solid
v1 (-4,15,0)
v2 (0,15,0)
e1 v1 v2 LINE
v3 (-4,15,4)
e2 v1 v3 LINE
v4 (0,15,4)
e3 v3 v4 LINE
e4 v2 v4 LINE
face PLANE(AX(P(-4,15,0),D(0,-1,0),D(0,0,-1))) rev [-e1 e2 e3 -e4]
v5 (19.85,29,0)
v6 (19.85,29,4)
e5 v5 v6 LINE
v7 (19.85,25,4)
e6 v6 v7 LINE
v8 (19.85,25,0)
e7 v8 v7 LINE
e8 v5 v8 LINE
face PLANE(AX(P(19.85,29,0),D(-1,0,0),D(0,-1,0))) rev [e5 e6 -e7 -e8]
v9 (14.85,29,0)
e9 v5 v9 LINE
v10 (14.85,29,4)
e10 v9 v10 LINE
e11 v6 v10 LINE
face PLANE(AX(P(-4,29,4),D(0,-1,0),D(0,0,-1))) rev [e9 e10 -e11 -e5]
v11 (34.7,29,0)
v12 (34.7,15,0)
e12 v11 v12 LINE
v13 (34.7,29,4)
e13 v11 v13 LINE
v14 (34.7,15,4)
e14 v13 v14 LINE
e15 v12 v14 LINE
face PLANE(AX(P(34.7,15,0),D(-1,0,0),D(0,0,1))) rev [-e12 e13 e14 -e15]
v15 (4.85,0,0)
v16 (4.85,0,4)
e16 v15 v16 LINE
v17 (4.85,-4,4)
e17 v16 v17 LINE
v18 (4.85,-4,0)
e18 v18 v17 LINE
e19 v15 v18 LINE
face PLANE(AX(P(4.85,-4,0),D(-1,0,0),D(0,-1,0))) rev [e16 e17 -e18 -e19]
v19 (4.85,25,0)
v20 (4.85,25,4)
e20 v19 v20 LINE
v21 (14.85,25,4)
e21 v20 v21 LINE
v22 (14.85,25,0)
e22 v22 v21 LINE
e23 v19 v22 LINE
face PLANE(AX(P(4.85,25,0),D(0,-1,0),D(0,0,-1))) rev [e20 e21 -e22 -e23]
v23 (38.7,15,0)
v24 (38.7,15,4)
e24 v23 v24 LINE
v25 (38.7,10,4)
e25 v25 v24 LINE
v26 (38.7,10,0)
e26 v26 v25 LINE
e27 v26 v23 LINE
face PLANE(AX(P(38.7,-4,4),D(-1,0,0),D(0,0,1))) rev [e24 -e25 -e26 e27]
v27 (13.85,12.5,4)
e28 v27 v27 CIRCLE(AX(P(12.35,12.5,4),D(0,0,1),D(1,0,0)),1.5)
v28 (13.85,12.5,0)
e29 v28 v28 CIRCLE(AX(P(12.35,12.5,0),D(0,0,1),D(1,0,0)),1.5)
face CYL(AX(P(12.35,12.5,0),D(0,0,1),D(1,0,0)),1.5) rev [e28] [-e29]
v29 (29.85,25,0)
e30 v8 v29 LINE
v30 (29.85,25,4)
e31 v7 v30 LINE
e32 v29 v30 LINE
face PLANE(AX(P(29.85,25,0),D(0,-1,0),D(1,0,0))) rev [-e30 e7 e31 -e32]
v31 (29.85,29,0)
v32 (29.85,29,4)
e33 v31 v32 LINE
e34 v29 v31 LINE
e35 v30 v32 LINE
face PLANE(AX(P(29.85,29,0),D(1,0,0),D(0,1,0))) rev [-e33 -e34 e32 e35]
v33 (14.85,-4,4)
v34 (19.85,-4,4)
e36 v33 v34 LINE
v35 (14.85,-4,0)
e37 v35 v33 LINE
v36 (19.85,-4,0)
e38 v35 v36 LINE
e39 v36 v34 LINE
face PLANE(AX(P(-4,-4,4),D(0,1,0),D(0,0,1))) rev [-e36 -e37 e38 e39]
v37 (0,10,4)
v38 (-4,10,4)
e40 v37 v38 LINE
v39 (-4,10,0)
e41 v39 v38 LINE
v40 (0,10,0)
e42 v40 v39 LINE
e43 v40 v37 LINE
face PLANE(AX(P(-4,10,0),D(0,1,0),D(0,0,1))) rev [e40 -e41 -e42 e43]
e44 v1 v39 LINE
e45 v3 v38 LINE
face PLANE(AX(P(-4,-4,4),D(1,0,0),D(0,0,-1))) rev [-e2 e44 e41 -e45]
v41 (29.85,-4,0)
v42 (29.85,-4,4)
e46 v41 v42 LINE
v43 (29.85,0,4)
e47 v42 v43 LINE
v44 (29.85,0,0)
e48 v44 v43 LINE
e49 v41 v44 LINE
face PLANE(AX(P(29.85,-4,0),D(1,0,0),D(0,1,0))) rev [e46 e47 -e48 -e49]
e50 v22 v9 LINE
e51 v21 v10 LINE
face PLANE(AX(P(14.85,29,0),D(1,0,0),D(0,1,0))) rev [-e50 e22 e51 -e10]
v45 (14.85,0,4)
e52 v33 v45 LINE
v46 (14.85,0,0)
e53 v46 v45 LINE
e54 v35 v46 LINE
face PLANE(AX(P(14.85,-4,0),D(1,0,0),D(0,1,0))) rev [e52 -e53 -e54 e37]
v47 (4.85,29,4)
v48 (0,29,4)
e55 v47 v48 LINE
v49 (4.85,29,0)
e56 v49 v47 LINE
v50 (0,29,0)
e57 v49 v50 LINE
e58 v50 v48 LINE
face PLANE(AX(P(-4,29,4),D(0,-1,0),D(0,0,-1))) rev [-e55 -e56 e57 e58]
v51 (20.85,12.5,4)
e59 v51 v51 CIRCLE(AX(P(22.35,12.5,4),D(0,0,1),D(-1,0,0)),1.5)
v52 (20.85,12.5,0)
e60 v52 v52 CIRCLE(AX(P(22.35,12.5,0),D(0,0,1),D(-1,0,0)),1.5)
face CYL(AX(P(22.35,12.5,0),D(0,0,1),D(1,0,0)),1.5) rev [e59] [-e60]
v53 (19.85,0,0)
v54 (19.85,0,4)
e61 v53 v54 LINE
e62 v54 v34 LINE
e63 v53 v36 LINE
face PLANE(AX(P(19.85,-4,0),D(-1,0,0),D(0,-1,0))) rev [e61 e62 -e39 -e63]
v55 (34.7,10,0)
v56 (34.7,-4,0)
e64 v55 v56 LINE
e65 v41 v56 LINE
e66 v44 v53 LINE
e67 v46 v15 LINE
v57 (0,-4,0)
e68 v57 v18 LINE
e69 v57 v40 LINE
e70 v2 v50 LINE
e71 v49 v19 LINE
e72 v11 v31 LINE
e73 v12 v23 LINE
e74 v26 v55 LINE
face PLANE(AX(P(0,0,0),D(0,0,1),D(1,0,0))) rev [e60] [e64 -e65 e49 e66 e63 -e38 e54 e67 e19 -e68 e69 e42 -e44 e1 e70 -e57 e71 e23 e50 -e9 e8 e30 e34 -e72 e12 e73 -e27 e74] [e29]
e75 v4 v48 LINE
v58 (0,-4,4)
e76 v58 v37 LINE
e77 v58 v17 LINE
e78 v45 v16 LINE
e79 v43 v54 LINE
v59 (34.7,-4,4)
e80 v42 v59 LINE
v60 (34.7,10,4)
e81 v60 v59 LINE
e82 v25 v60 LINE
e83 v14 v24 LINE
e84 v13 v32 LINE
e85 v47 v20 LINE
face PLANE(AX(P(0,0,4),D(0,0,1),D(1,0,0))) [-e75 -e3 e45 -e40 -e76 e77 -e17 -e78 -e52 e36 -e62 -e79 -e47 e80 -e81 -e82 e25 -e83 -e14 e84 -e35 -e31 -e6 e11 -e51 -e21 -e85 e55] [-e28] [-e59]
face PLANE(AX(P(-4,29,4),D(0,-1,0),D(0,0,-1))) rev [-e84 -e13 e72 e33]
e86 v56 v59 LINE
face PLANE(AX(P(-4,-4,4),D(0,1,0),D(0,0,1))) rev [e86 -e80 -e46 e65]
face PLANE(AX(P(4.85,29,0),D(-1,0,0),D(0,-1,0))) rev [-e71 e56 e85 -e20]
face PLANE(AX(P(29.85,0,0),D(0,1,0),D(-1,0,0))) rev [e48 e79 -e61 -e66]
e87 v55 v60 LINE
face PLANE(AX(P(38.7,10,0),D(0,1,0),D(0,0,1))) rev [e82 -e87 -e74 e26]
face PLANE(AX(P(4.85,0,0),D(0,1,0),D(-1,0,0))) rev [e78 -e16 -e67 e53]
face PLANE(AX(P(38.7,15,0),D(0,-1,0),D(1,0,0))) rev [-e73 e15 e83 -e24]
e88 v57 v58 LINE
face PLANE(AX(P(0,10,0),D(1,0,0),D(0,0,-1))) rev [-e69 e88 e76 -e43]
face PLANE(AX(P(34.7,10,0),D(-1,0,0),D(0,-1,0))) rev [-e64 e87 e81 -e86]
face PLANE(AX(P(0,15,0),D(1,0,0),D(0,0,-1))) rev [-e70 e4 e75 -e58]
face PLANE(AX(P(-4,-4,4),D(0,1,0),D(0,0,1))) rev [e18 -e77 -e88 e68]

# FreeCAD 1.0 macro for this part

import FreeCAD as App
import Part
import Sketcher


def add_polygon(sketch, points):
    """Adds a closed chain of lines whose ends are joined by coincident constraints."""
    first, n = sketch.GeometryCount, len(points)
    for a, b in zip(points, points[1:] + points[:1]):
        sketch.addGeometry(Part.LineSegment(App.Vector(*a, 0), App.Vector(*b, 0)), False)
    for i in range(n):
        sketch.addConstraint(Sketcher.Constraint("Coincident", first + i, 2, first + (i + 1) % n, 1))

doc = App.newDocument("Part")
body = doc.addObject("PartDesign::Body", "Body")

# Sketch on XY plane
sketch1 = body.newObject("Sketcher::SketchObject", "Sketch")
sketch1.AttachmentSupport = (doc.getObject("XY_Plane"), [""])
sketch1.MapMode = "FlatFace"
add_polygon(sketch1, [(-4, 29), (-4, -4), (38.7, -4), (38.7, 29)])  # lines 0-3
sketch1.addConstraint([
    Sketcher.Constraint("Vertical", 0),
    Sketcher.Constraint("Horizontal", 1),
    Sketcher.Constraint("Vertical", 2),
    Sketcher.Constraint("Horizontal", 3),
    Sketcher.Constraint("DistanceY", 0, 2, 0, 1, 33.0),
    Sketcher.Constraint("DistanceX", 1, 1, 1, 2, 42.7),
    Sketcher.Constraint("DistanceX", 0, 2, -1, 1, 4.0),
    Sketcher.Constraint("DistanceY", 0, 2, -1, 1, 4.0),
])
pad1 = body.newObject("PartDesign::Pad", "Pad")
pad1.Profile = sketch1
pad1.Length = 4

# Sketch on XY plane
sketch2 = body.newObject("Sketcher::SketchObject", "Sketch001")
sketch2.AttachmentSupport = (doc.getObject("XY_Plane"), [""])
sketch2.MapMode = "FlatFace"
sketch2.AttachmentOffset = App.Placement(App.Vector(0, 0, 4), App.Rotation())
sketch2.addGeometry(Part.Circle(App.Vector(12.35, 12.5, 0), App.Vector(0, 0, 1), 1.5), False)  # 0
sketch2.addGeometry(Part.Circle(App.Vector(22.35, 12.5, 0), App.Vector(0, 0, 1), 1.5), False)  # 1
add_polygon(sketch2, [(4.85, 29), (4.85, 25), (14.85, 25), (14.85, 29)])  # lines 2-5
add_polygon(sketch2, [(19.85, 29), (19.85, 25), (29.85, 25), (29.85, 29)])  # lines 6-9
add_polygon(sketch2, [(-4, 10), (-4, -4), (0, -4), (0, 10)])  # lines 10-13
add_polygon(sketch2, [(-4, 29), (-4, 15), (0, 15), (0, 29)])  # lines 14-17
add_polygon(sketch2, [(19.85, 0), (19.85, -4), (29.85, -4), (29.85, 0)])  # lines 18-21
add_polygon(sketch2, [(4.85, 0), (4.85, -4), (14.85, -4), (14.85, 0)])  # lines 22-25
add_polygon(sketch2, [(34.7, 10), (34.7, -4), (38.7, -4), (38.7, 10)])  # lines 26-29
add_polygon(sketch2, [(34.7, 29), (34.7, 15), (38.7, 15), (38.7, 29)])  # lines 30-33
sketch2.addConstraint([
    Sketcher.Constraint("Vertical", 2),
    Sketcher.Constraint("Horizontal", 3),
    Sketcher.Constraint("Vertical", 4),
    Sketcher.Constraint("Horizontal", 5),
    Sketcher.Constraint("Vertical", 6),
    Sketcher.Constraint("Horizontal", 7),
    Sketcher.Constraint("Vertical", 8),
    Sketcher.Constraint("Horizontal", 9),
    Sketcher.Constraint("Vertical", 10),
    Sketcher.Constraint("Horizontal", 11),
    Sketcher.Constraint("Vertical", 12),
    Sketcher.Constraint("Horizontal", 13),
    Sketcher.Constraint("Vertical", 14),
    Sketcher.Constraint("Horizontal", 15),
    Sketcher.Constraint("Vertical", 16),
    Sketcher.Constraint("Horizontal", 17),
    Sketcher.Constraint("Vertical", 18),
    Sketcher.Constraint("Horizontal", 19),
    Sketcher.Constraint("Vertical", 20),
    Sketcher.Constraint("Horizontal", 21),
    Sketcher.Constraint("Vertical", 22),
    Sketcher.Constraint("Horizontal", 23),
    Sketcher.Constraint("Vertical", 24),
    Sketcher.Constraint("Horizontal", 25),
    Sketcher.Constraint("Vertical", 26),
    Sketcher.Constraint("Horizontal", 27),
    Sketcher.Constraint("Vertical", 28),
    Sketcher.Constraint("Horizontal", 29),
    Sketcher.Constraint("Vertical", 30),
    Sketcher.Constraint("Horizontal", 31),
    Sketcher.Constraint("Vertical", 32),
    Sketcher.Constraint("Horizontal", 33),
    Sketcher.Constraint("Equal", 0, 1),
    Sketcher.Constraint("PointOnObject", 11, 2, -2),
    Sketcher.Constraint("PointOnObject", 15, 2, -2),
    Sketcher.Constraint("PointOnObject", 20, 2, -1),
    Sketcher.Constraint("PointOnObject", 24, 2, -1),
    Sketcher.Constraint("Horizontal", 0, 3, 1, 3),
    Sketcher.Constraint("Horizontal", 3, 2, 6, 2),
    Sketcher.Constraint("Horizontal", 5, 2, 8, 2),
    Sketcher.Constraint("Horizontal", 9, 2, 16, 2),
    Sketcher.Constraint("Horizontal", 11, 2, 18, 2),
    Sketcher.Constraint("Horizontal", 19, 2, 22, 2),
    Sketcher.Constraint("Horizontal", 23, 2, 26, 2),
    Sketcher.Constraint("Horizontal", 13, 2, 28, 2),
    Sketcher.Constraint("Horizontal", 15, 2, 30, 2),
    Sketcher.Constraint("Horizontal", 17, 2, 32, 2),
    Sketcher.Constraint("Vertical", 13, 2, 14, 2),
    Sketcher.Constraint("Vertical", 9, 2, 18, 2),
    Sketcher.Constraint("Vertical", 8, 2, 19, 2),
    Sketcher.Constraint("Vertical", 5, 2, 22, 2),
    Sketcher.Constraint("Vertical", 4, 2, 23, 2),
    Sketcher.Constraint("Vertical", 29, 2, 30, 2),
    Sketcher.Constraint("Vertical", 28, 2, 31, 2),
    Sketcher.Constraint("Equal", 5, 7),
    Sketcher.Constraint("Equal", 17, 27),
    Sketcher.Constraint("Equal", 33, 2),
    Sketcher.Constraint("Equal", 12, 14),
    Sketcher.Constraint("Equal", 8, 18),
    Sketcher.Constraint("Diameter", 0, 3.0),
    Sketcher.Constraint("DistanceX", 3, 1, 3, 2, 10.0),
    Sketcher.Constraint("DistanceX", 11, 1, 11, 2, 4.0),
    Sketcher.Constraint("DistanceY", 10, 2, 10, 1, 14.0),
    Sketcher.Constraint("DistanceY", -1, 1, 2, 2, 25.0),
    Sketcher.Constraint("DistanceX", 0, 3, 1, 3, 10.0),
    Sketcher.Constraint("DistanceX", 3, 2, 6, 2, 5.0),
    Sketcher.Constraint("DistanceY", -1, 1, 0, 3, 12.5),
    Sketcher.Constraint("DistanceX", -1, 1, 26, 2, 34.7),
    Sketcher.Constraint("DistanceX", 2, 2, 0, 3, 7.5),
    Sketcher.Constraint("DistanceX", -1, 1, 0, 3, 12.35),
])
pocket1 = body.newObject("PartDesign::Pocket", "Pocket")
pocket1.Profile = sketch2
pocket1.Length = 4

doc.recompute()
